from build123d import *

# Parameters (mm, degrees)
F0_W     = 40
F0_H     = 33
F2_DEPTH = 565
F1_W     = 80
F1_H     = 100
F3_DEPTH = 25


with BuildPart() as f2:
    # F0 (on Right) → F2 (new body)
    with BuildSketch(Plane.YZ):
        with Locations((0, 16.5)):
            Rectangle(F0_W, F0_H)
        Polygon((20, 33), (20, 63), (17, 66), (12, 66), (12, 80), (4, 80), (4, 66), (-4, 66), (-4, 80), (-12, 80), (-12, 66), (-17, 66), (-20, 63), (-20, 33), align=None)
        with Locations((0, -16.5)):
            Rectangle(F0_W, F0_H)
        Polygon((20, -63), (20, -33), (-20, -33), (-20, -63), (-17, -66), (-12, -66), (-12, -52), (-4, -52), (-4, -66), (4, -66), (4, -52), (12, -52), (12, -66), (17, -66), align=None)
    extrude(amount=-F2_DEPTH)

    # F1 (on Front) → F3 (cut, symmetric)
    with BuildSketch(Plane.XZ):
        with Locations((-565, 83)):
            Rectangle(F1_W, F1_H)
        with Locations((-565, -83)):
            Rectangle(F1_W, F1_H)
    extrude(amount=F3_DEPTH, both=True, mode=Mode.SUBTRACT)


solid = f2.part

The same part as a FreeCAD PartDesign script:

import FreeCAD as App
import Part
import Sketcher
Q = App.Units.Quantity

doc = App.newDocument("Part")
body = doc.addObject("PartDesign::Body", "Body")

# Sketch on YZ plane
sketch1 = body.newObject("Sketcher::SketchObject", "Sketch")
sketch1.AttachmentSupport = (doc.getObject("YZ_Plane"), [""])
sketch1.MapMode = "FlatFace"
sketch1.addGeometry([
    Part.LineSegment(App.Vector(20, 63, 0), App.Vector(17, 66, 0)),  # 0
    Part.LineSegment(App.Vector(17, 66, 0), App.Vector(12, 66, 0)),  # 1
    Part.LineSegment(App.Vector(12, 66, 0), App.Vector(12, 80, 0)),  # 2
    Part.LineSegment(App.Vector(12, 80, 0), App.Vector(4, 80, 0)),  # 3
    Part.LineSegment(App.Vector(4, 80, 0), App.Vector(4, 66, 0)),  # 4
    Part.LineSegment(App.Vector(4, 66, 0), App.Vector(-4, 66, 0)),  # 5
    Part.LineSegment(App.Vector(-4, 66, 0), App.Vector(-4, 80, 0)),  # 6
    Part.LineSegment(App.Vector(-4, 80, 0), App.Vector(-12, 80, 0)),  # 7
    Part.LineSegment(App.Vector(-12, 80, 0), App.Vector(-12, 66, 0)),  # 8
    Part.LineSegment(App.Vector(-12, 66, 0), App.Vector(-17, 66, 0)),  # 9
    Part.LineSegment(App.Vector(-17, 66, 0), App.Vector(-20, 63, 0)),  # 10
    Part.LineSegment(App.Vector(-20, 63, 0), App.Vector(-20, -63, 0)),  # 11
    Part.LineSegment(App.Vector(-20, -63, 0), App.Vector(-17, -66, 0)),  # 12
    Part.LineSegment(App.Vector(-17, -66, 0), App.Vector(-12, -66, 0)),  # 13
    Part.LineSegment(App.Vector(-12, -66, 0), App.Vector(-12, -52, 0)),  # 14
    Part.LineSegment(App.Vector(-12, -52, 0), App.Vector(-4, -52, 0)),  # 15
    Part.LineSegment(App.Vector(-4, -52, 0), App.Vector(-4, -66, 0)),  # 16
    Part.LineSegment(App.Vector(-4, -66, 0), App.Vector(4, -66, 0)),  # 17
    Part.LineSegment(App.Vector(4, -66, 0), App.Vector(4, -52, 0)),  # 18
    Part.LineSegment(App.Vector(4, -52, 0), App.Vector(12, -52, 0)),  # 19
    Part.LineSegment(App.Vector(12, -52, 0), App.Vector(12, -66, 0)),  # 20
    Part.LineSegment(App.Vector(12, -66, 0), App.Vector(17, -66, 0)),  # 21
    Part.LineSegment(App.Vector(17, -66, 0), App.Vector(20, -63, 0)),  # 22
    Part.LineSegment(App.Vector(20, -63, 0), App.Vector(20, 63, 0)),  # 23
], False)
sketch1.addConstraint([
    Sketcher.Constraint("Coincident", 0, 2, 1, 1),
    Sketcher.Constraint("Coincident", 1, 2, 2, 1),
    Sketcher.Constraint("Coincident", 2, 2, 3, 1),
    Sketcher.Constraint("Coincident", 3, 2, 4, 1),
    Sketcher.Constraint("Coincident", 4, 2, 5, 1),
    Sketcher.Constraint("Coincident", 5, 2, 6, 1),
    Sketcher.Constraint("Coincident", 6, 2, 7, 1),
    Sketcher.Constraint("Coincident", 7, 2, 8, 1),
    Sketcher.Constraint("Coincident", 8, 2, 9, 1),
    Sketcher.Constraint("Coincident", 9, 2, 10, 1),
    Sketcher.Constraint("Coincident", 10, 2, 11, 1),
    Sketcher.Constraint("Coincident", 11, 2, 12, 1),
    Sketcher.Constraint("Coincident", 12, 2, 13, 1),
    Sketcher.Constraint("Coincident", 13, 2, 14, 1),
    Sketcher.Constraint("Coincident", 14, 2, 15, 1),
    Sketcher.Constraint("Coincident", 15, 2, 16, 1),
    Sketcher.Constraint("Coincident", 16, 2, 17, 1),
    Sketcher.Constraint("Coincident", 17, 2, 18, 1),
    Sketcher.Constraint("Coincident", 18, 2, 19, 1),
    Sketcher.Constraint("Coincident", 19, 2, 20, 1),
    Sketcher.Constraint("Coincident", 20, 2, 21, 1),
    Sketcher.Constraint("Coincident", 21, 2, 22, 1),
    Sketcher.Constraint("Coincident", 22, 2, 23, 1),
    Sketcher.Constraint("Coincident", 23, 2, 0, 1),
    Sketcher.Constraint("Horizontal", 1),
    Sketcher.Constraint("Vertical", 2),
    Sketcher.Constraint("Horizontal", 3),
    Sketcher.Constraint("Vertical", 4),
    Sketcher.Constraint("Horizontal", 5),
    Sketcher.Constraint("Vertical", 6),
    Sketcher.Constraint("Horizontal", 7),
    Sketcher.Constraint("Vertical", 8),
    Sketcher.Constraint("Horizontal", 9),
    Sketcher.Constraint("Vertical", 11),
    Sketcher.Constraint("Horizontal", 13),
    Sketcher.Constraint("Vertical", 14),
    Sketcher.Constraint("Horizontal", 15),
    Sketcher.Constraint("Vertical", 16),
    Sketcher.Constraint("Horizontal", 17),
    Sketcher.Constraint("Vertical", 18),
    Sketcher.Constraint("Horizontal", 19),
    Sketcher.Constraint("Vertical", 20),
    Sketcher.Constraint("Horizontal", 21),
    Sketcher.Constraint("Vertical", 23),
    Sketcher.Constraint("Symmetric", 0, 2, 12, 2, -1, 1),
    Sketcher.Constraint("Symmetric", 4, 2, 16, 2, -1, 1),
    Sketcher.Constraint("Symmetric", 8, 2, 20, 2, -1, 1),
    Sketcher.Constraint("Symmetric", 10, 2, 22, 2, -1, 1),
    Sketcher.Constraint("Symmetric", 3, 2, 6, 2, -2),
    Sketcher.Constraint("Symmetric", 1, 2, 8, 2, -2),
    Sketcher.Constraint("Symmetric", 15, 2, 18, 2, -2),
    Sketcher.Constraint("Perpendicular", 0, 10),
    Sketcher.Constraint("Perpendicular", 10, 12),
    Sketcher.Constraint("Perpendicular", 12, 22),
    Sketcher.Constraint("Horizontal", 1, 2, 4, 2),
    Sketcher.Constraint("Horizontal", 11, 2, 22, 2),
    Sketcher.Constraint("Vertical", 9, 2, 12, 2),
    Sketcher.Constraint("Vertical", 8, 2, 13, 2),
    Sketcher.Constraint("Equal", 3, 5),
    Sketcher.Constraint("Equal", 8, 14),
    Sketcher.Constraint("DistanceX", 1, 2, 1, 1, Q("5 mm")),
    Sketcher.Constraint("DistanceX", 3, 2, 3, 1, Q("8 mm")),
    Sketcher.Constraint("DistanceY", 2, 1, 2, 2, Q("14 mm")),
    Sketcher.Constraint("DistanceY", 11, 2, 11, 1, Q("126 mm")),
    Sketcher.Constraint("DistanceY", -1, 1, 0, 2, Q("66 mm")),
])
pad1 = body.newObject("PartDesign::Pad", "Pad")
pad1.Profile = sketch1
pad1.Length = 565
pad1.Reversed = True

# Sketch on XZ plane
sketch2 = body.newObject("Sketcher::SketchObject", "Sketch001")
sketch2.AttachmentSupport = (doc.getObject("XZ_Plane"), [""])
sketch2.MapMode = "FlatFace"
sketch2.addGeometry([
    Part.LineSegment(App.Vector(-605, 133, 0), App.Vector(-605, 33, 0)),  # 0
    Part.LineSegment(App.Vector(-605, 33, 0), App.Vector(-525, 33, 0)),  # 1
    Part.LineSegment(App.Vector(-525, 33, 0), App.Vector(-525, 133, 0)),  # 2
    Part.LineSegment(App.Vector(-525, 133, 0), App.Vector(-605, 133, 0)),  # 3
    Part.LineSegment(App.Vector(-605, -33, 0), App.Vector(-605, -133, 0)),  # 4
    Part.LineSegment(App.Vector(-605, -133, 0), App.Vector(-525, -133, 0)),  # 5
    Part.LineSegment(App.Vector(-525, -133, 0), App.Vector(-525, -33, 0)),  # 6
    Part.LineSegment(App.Vector(-525, -33, 0), App.Vector(-605, -33, 0)),  # 7
], False)
sketch2.addConstraint([
    Sketcher.Constraint("Coincident", 0, 2, 1, 1),
    Sketcher.Constraint("Coincident", 1, 2, 2, 1),
    Sketcher.Constraint("Coincident", 2, 2, 3, 1),
    Sketcher.Constraint("Coincident", 3, 2, 0, 1),
    Sketcher.Constraint("Coincident", 4, 2, 5, 1),
    Sketcher.Constraint("Coincident", 5, 2, 6, 1),
    Sketcher.Constraint("Coincident", 6, 2, 7, 1),
    Sketcher.Constraint("Coincident", 7, 2, 4, 1),
    Sketcher.Constraint("Vertical", 0),
    Sketcher.Constraint("Horizontal", 1),
    Sketcher.Constraint("Vertical", 2),
    Sketcher.Constraint("Horizontal", 3),
    Sketcher.Constraint("Vertical", 4),
    Sketcher.Constraint("Horizontal", 5),
    Sketcher.Constraint("Vertical", 6),
    Sketcher.Constraint("Horizontal", 7),
    Sketcher.Constraint("Symmetric", 3, 2, 4, 2, -1),
    Sketcher.Constraint("Symmetric", 1, 2, 6, 2, -1),
    Sketcher.Constraint("DistanceX", 1, 1, 1, 2, Q("80 mm")),
    Sketcher.Constraint("DistanceY", 0, 2, 0, 1, Q("100 mm")),
    Sketcher.Constraint("DistanceX", 0, 2, -1, 1, Q("605 mm")),
    Sketcher.Constraint("DistanceY", -1, 1, 0, 2, Q("33 mm")),
])
pocket1 = body.newObject("PartDesign::Pocket", "Pocket")
pocket1.Profile = sketch2
pocket1.Length = 50
pocket1.Midplane = True

doc.recompute()
